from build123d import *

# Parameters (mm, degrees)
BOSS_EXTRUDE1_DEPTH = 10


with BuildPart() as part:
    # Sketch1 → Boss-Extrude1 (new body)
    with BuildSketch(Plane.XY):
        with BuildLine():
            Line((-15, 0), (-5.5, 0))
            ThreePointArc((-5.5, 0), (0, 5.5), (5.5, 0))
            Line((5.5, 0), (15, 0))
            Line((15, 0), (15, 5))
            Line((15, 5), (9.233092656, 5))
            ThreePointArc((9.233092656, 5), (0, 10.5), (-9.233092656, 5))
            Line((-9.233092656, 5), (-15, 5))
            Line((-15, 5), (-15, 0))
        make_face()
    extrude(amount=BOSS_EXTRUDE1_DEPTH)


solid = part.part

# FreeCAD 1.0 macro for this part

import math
import FreeCAD as App
import Part
import Sketcher

V = App.Vector

doc = App.newDocument("Part")
body = doc.addObject("PartDesign::Body", "Body")

# Sketch on XY plane
sketch1 = doc.addObject("Sketcher::SketchObject", "Sketch")
body.addObject(sketch1)
sketch1.AttachmentSupport = (doc.XY_Plane, [""])
sketch1.MapMode = "FlatFace"
sketch1.addGeometry([
    Part.LineSegment(V(-15, 0, 0), V(-6, 0, 0)),  # 0
    Part.ArcOfCircle(Part.Circle(V(0, 0, 0), V(0, 0, 1), 6), math.radians(0), math.radians(180)),  # 1
    Part.LineSegment(V(6, 0, 0), V(15, 0, 0)),  # 2
    Part.LineSegment(V(15, 0, 0), V(15, 5, 0)),  # 3
    Part.LineSegment(V(15, 5, 0), V(9, 5, 0)),  # 4
    Part.ArcOfCircle(Part.Circle(V(0, 0, 0), V(0, 0, 1), 10), math.radians(28), math.radians(152)),  # 5
    Part.LineSegment(V(-9, 5, 0), V(-15, 5, 0)),  # 6
    Part.LineSegment(V(-15, 5, 0), V(-15, 0, 0)),  # 7
], False)
sketch1.addConstraint([
    Sketcher.Constraint("Coincident", 0, 2, 1, 2),
    Sketcher.Constraint("Coincident", 1, 1, 2, 1),
    Sketcher.Constraint("Coincident", 2, 2, 3, 1),
    Sketcher.Constraint("Coincident", 3, 2, 4, 1),
    Sketcher.Constraint("Coincident", 4, 2, 5, 1),
    Sketcher.Constraint("Coincident", 5, 2, 6, 1),
    Sketcher.Constraint("Coincident", 6, 2, 7, 1),
    Sketcher.Constraint("Coincident", 7, 2, 0, 1),
    Sketcher.Constraint("Horizontal", 0),
    Sketcher.Constraint("Horizontal", 2),
    Sketcher.Constraint("Vertical", 3),
    Sketcher.Constraint("Horizontal", 4),
    Sketcher.Constraint("Horizontal", 6),
    Sketcher.Constraint("Vertical", 7),
    Sketcher.Constraint("Coincident", 1, 3, -1, 1),
    Sketcher.Constraint("Coincident", 5, 3, -1, 1),
    Sketcher.Constraint("Symmetric", 2, 2, 7, 2, -1, 1),
    Sketcher.Constraint("PointOnObject", 0, 2, -1),
    Sketcher.Constraint("Horizontal", 4, 2, 5, 2),
    Sketcher.Constraint("Radius", 1, 5.5),
    Sketcher.Constraint("Radius", 5, 10.5),
    Sketcher.Constraint("DistanceY", 3, 1, 3, 2, 5.0),
    Sketcher.Constraint("DistanceX", 0, 1, 0, 2, 9.5),
])
pad1 = doc.addObject("PartDesign::Pad", "Pad")
body.addObject(pad1)
pad1.Profile = sketch1
pad1.Length = 10

doc.recompute()
